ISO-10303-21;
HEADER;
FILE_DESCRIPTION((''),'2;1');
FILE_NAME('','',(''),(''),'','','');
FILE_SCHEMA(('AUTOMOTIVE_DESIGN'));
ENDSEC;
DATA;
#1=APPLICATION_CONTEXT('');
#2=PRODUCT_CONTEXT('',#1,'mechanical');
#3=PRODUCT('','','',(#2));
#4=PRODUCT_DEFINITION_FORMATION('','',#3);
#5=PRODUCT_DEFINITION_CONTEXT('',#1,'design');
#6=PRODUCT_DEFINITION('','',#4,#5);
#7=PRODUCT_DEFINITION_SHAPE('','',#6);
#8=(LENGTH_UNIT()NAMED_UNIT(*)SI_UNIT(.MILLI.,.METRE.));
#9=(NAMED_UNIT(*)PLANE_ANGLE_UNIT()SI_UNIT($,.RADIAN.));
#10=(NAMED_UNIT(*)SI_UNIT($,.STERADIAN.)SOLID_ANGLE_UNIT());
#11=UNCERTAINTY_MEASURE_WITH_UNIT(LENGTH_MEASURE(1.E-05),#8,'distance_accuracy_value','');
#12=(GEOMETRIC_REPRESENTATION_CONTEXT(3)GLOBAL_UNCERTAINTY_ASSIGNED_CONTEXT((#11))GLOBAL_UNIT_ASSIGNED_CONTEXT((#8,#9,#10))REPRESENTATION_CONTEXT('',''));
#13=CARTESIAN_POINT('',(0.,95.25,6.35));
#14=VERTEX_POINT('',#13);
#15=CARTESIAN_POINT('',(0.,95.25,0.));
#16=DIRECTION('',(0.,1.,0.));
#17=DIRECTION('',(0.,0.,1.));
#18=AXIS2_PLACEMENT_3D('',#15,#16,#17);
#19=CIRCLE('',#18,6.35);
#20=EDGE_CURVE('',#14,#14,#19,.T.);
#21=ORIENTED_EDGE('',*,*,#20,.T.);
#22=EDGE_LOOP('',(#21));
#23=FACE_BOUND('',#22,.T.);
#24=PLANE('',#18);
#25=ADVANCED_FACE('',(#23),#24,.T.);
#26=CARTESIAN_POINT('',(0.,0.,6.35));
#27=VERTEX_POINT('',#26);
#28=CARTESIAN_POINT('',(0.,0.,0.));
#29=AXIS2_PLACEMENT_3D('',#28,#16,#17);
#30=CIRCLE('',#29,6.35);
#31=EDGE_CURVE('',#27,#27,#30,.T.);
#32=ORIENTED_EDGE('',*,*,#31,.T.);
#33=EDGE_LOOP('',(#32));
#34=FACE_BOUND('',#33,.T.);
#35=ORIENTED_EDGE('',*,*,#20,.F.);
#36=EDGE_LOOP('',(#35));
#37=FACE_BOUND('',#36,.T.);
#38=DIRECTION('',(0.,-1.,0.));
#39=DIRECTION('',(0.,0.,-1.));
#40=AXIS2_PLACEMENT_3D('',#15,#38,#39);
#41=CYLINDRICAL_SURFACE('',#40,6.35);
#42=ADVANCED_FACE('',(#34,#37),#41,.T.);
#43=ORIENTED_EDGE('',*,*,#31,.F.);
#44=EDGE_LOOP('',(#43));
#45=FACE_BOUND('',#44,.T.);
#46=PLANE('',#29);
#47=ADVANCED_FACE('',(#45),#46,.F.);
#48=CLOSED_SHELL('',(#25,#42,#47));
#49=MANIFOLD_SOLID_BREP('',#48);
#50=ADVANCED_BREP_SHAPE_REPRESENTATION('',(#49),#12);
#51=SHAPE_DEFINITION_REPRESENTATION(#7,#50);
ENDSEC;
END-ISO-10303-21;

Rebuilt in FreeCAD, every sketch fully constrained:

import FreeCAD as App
import Part
import Sketcher
from FreeCAD import Vector
Q = App.Units.Quantity

doc = App.newDocument("Part")
body = doc.addObject("PartDesign::Body", "Body")

sketch1 = doc.addObject("Sketcher::SketchObject", "Sketch")
body.addObject(sketch1)
sketch1.AttachmentSupport = (doc.XZ_Plane, [""])
sketch1.MapMode = "FlatFace"
sketch1.addGeometry(Part.Circle(Vector(0, 0, 0), Vector(0, 0, 1), 6), False)
sketch1.addConstraint([
    Sketcher.Constraint("Coincident", 0, 3, -1, 1),
    Sketcher.Constraint("Diameter", 0, Q("0.5 in")),
])
pad1 = doc.addObject("PartDesign::Pad", "Pad")
body.addObject(pad1)
pad1.Profile = sketch1
pad1.Length = Q("3.75 in")
pad1.Reversed = True

doc.recompute()
